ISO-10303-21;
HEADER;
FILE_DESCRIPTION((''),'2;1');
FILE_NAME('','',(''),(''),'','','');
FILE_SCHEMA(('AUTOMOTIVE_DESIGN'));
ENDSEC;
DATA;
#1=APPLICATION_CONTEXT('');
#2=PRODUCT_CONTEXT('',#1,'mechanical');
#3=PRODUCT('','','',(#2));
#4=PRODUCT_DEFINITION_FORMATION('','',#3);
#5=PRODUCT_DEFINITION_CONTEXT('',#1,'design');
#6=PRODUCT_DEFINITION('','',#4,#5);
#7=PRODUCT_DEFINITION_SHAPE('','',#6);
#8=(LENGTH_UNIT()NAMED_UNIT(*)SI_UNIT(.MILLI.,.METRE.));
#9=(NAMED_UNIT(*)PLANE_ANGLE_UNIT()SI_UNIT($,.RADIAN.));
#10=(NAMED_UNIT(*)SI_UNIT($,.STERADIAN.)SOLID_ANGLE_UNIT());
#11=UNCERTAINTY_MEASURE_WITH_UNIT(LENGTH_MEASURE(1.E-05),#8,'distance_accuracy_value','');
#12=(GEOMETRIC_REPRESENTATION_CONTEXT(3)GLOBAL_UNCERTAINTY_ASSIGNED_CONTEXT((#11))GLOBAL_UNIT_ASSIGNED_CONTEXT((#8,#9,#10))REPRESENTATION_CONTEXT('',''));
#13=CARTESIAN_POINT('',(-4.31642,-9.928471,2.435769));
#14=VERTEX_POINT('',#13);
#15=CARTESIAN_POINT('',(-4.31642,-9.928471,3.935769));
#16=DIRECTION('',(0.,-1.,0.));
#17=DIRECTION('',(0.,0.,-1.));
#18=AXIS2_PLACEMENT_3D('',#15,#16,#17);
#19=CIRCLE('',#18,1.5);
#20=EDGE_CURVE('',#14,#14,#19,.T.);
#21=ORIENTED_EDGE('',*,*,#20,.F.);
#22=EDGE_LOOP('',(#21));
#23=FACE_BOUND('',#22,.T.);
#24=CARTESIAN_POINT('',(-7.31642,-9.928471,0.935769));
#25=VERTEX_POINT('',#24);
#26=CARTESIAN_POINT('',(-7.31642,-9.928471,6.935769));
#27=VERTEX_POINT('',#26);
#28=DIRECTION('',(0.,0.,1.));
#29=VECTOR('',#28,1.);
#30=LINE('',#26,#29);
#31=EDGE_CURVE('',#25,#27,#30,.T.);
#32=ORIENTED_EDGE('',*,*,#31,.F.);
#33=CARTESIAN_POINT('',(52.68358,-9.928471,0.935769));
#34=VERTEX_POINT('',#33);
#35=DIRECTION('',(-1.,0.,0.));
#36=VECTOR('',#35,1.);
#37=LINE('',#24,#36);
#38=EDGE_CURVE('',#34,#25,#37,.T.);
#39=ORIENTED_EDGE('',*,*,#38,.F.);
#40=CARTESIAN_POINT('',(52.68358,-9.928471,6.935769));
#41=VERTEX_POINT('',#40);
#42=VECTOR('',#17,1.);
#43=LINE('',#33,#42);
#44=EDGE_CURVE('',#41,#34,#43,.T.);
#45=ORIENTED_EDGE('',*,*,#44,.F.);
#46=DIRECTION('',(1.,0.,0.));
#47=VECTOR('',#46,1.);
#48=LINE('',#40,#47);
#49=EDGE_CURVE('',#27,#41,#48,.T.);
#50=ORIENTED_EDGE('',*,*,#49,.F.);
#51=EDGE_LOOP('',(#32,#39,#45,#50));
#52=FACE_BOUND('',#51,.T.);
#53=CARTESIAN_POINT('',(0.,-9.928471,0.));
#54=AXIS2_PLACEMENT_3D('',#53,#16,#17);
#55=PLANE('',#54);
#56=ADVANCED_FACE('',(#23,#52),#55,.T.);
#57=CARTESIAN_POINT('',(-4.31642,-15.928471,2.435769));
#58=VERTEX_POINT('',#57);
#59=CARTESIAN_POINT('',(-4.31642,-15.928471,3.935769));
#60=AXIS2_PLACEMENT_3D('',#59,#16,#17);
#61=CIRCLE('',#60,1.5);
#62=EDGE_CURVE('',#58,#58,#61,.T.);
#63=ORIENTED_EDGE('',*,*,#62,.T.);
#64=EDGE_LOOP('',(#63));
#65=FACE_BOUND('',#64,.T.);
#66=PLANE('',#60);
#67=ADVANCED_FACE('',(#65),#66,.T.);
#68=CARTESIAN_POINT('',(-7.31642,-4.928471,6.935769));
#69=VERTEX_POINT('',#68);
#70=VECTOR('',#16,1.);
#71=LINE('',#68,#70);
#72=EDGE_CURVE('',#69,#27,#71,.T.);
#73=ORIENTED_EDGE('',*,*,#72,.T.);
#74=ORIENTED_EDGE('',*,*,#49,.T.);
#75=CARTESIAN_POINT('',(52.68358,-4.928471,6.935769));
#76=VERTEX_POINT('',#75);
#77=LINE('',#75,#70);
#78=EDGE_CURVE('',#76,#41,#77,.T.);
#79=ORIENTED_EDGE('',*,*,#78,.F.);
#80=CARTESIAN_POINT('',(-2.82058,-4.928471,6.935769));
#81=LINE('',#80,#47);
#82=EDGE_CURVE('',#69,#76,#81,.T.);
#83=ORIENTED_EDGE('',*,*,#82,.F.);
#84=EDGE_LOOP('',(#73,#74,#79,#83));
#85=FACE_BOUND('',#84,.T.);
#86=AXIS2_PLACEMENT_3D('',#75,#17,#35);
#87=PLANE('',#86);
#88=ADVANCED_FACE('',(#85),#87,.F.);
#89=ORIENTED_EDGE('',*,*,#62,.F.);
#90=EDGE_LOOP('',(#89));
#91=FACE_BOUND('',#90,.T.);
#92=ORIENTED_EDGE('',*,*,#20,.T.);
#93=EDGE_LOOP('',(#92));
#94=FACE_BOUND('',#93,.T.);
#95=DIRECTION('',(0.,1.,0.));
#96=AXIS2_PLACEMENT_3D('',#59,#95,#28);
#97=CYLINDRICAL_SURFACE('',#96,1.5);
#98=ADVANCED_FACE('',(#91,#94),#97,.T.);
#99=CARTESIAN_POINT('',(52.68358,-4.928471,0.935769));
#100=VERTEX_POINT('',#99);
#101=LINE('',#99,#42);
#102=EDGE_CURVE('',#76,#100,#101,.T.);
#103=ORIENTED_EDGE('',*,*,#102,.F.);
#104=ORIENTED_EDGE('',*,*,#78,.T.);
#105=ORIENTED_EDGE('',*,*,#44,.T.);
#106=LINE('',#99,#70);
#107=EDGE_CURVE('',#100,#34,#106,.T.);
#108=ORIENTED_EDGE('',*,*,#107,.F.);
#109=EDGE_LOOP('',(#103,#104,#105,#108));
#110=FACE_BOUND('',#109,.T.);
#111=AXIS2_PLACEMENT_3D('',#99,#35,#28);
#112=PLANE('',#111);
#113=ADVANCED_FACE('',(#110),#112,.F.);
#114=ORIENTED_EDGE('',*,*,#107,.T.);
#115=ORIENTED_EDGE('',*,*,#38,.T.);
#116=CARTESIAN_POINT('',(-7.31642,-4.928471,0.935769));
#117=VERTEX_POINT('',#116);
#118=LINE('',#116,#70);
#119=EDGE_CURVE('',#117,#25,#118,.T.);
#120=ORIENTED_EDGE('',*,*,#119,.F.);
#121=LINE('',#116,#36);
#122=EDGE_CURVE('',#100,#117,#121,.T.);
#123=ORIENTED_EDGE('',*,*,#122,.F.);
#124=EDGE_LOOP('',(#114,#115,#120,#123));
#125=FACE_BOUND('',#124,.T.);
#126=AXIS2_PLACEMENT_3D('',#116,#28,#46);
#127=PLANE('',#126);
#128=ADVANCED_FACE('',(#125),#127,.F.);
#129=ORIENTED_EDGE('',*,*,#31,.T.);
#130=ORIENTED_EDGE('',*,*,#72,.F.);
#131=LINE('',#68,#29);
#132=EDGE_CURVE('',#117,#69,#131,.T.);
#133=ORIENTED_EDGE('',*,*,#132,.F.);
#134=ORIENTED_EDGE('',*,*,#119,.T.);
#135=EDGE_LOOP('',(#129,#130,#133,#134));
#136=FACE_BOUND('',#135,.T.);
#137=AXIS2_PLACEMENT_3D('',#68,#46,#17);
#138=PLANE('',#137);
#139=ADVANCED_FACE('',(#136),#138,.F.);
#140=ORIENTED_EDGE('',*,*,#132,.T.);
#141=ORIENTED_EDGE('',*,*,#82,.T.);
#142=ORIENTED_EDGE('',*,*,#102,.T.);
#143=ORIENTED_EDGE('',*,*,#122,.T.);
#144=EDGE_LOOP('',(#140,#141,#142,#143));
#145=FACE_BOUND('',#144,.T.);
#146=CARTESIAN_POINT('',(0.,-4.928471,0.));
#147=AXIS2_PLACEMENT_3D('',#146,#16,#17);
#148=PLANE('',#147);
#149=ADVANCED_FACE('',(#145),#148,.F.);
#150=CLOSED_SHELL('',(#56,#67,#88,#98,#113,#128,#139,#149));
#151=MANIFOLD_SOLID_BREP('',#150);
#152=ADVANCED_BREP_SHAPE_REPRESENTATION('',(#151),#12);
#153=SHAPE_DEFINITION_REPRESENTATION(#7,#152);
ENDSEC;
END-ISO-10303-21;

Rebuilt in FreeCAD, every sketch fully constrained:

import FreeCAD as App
import Part
import Sketcher
from FreeCAD import Vector
Q = App.Units.Quantity


def add_polygon(sketch, points):
    """Adds a closed chain of lines whose ends are joined by coincident constraints."""
    first, n = sketch.GeometryCount, len(points)
    for a, b in zip(points, points[1:] + points[:1]):
        sketch.addGeometry(Part.LineSegment(App.Vector(*a, 0), App.Vector(*b, 0)), False)
    for i in range(n):
        sketch.addConstraint(Sketcher.Constraint("Coincident", first + i, 2, first + (i + 1) % n, 1))

doc = App.newDocument("Part")
body = doc.addObject("PartDesign::Body", "Body")

# Sketch on XZ plane
sketch1 = body.newObject("Sketcher::SketchObject", "Sketch")
sketch1.AttachmentSupport = (doc.getObject("XZ_Plane"), [""])
sketch1.MapMode = "FlatFace"
sketch1.AttachmentOffset = App.Placement(Vector(0, 0, 9.928471), App.Rotation())
add_polygon(sketch1, [(-7, 7), (53, 7), (53, 1), (-7, 1)])  # lines 0-3
sketch1.addConstraint([
    Sketcher.Constraint("Horizontal", 0),
    Sketcher.Constraint("Vertical", 1),
    Sketcher.Constraint("Horizontal", 2),
    Sketcher.Constraint("Vertical", 3),
    Sketcher.Constraint("DistanceX", 0, 1, 0, 2, Q("60 mm")),
    Sketcher.Constraint("DistanceY", 1, 2, 1, 1, Q("6 mm")),
    Sketcher.Constraint("DistanceX", -1, 1, 0, 2, Q("52.68358 mm")),
    Sketcher.Constraint("DistanceY", -1, 1, 0, 2, Q("6.935769 mm")),
])
pad1 = body.newObject("PartDesign::Pad", "Pad")
pad1.Profile = sketch1
pad1.Length = 5
pad1.Reversed = True

# Sketch on XZ plane
sketch2 = body.newObject("Sketcher::SketchObject", "Sketch001")
sketch2.AttachmentSupport = (doc.getObject("XZ_Plane"), [""])
sketch2.MapMode = "FlatFace"
sketch2.AttachmentOffset = App.Placement(Vector(0, 0, 9.928471), App.Rotation())
sketch2.addGeometry(Part.Circle(Vector(-4.3, 3.9, 0), Vector(0, 0, 1), 1.5), False)
sketch2.addConstraint([
    Sketcher.Constraint("Diameter", 0, Q("3 mm")),
    Sketcher.Constraint("DistanceX", 0, 3, -1, 1, Q("4.31642 mm")),
    Sketcher.Constraint("DistanceY", -1, 1, 0, 3, Q("3.935769 mm")),
])
pad2 = body.newObject("PartDesign::Pad", "Pad001")
pad2.Profile = sketch2
pad2.Length = 6

doc.recompute()
